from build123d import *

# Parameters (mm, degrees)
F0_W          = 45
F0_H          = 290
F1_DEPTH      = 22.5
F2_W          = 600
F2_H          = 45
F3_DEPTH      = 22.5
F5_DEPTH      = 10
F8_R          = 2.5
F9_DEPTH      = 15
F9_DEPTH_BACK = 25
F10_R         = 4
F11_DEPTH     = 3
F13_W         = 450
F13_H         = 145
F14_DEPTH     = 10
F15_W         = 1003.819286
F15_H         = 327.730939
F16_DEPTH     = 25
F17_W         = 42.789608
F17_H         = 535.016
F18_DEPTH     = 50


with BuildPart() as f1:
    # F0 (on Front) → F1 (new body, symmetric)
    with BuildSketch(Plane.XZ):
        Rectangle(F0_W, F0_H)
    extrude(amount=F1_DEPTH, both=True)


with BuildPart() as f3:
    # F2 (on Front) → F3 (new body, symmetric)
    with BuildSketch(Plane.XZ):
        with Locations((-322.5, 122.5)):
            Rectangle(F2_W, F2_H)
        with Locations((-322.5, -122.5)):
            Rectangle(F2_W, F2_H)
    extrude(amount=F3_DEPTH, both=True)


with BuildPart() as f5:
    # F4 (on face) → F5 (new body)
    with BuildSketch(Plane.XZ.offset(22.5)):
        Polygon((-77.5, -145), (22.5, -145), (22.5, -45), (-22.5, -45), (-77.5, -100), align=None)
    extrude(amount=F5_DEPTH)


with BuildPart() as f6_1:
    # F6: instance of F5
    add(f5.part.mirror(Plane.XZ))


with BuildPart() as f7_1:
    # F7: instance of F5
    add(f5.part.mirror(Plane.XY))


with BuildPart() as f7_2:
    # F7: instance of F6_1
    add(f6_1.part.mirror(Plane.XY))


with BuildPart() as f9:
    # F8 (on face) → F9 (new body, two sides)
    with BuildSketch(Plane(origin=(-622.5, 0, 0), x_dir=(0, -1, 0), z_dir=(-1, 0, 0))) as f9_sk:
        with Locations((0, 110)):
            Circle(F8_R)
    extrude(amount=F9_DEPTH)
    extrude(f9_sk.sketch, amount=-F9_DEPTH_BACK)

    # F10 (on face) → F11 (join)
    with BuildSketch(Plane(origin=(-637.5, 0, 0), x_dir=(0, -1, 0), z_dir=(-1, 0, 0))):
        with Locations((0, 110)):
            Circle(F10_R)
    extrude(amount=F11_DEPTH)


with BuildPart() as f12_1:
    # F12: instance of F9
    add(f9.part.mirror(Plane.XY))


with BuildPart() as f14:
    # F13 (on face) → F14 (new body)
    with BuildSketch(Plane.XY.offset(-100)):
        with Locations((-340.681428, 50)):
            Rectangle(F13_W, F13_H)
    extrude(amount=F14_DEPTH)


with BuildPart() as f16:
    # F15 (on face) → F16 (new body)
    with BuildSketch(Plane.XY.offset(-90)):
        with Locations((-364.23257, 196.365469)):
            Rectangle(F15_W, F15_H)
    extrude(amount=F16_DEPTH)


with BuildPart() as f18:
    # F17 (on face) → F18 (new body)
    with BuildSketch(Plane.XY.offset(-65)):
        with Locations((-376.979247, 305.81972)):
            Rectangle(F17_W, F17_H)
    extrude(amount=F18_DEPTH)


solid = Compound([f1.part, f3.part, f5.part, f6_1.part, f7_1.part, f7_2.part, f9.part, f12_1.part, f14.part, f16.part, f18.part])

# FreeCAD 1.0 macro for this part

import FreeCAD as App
import Part
import Sketcher

V = App.Vector

doc = App.newDocument("Part")
params = doc.addObject("Spreadsheet::Sheet", "Params")
for row, (alias, value) in enumerate([
    ("sketch1_width", "45 mm"),
    ("sketch1_height", "290 mm"),
    ("pad1_length", "45 mm"),
    ("sketch2_width", "600 mm"),
    ("sketch2_height", "45 mm"),
    ("pad2_length", "45 mm"),
    ("sketch3_width", "100 mm"),
    ("sketch3_width2", "45 mm"),
    ("pad3_length", "10 mm"),
    ("sketch4_diameter", "5 mm"),
    ("pad4_length", "15 mm"),
    ("pad4_length2", "25 mm"),
    ("sketch5_diameter", "8 mm"),
    ("pad5_length", "3 mm"),
    ("sketch6_width", "450 mm"),
    ("sketch6_height", "145 mm"),
    ("pad6_length", "10 mm"),
    ("pad7_length", "25 mm"),
    ("pad8_length", "50 mm"),
], start=1):
    params.set(f"A{row}", alias)
    params.set(f"B{row}", "=" + value)
    params.setAlias(f"B{row}", alias)

body = doc.addObject("PartDesign::Body", "Body")

# Sketch on XZ plane
sketch1 = body.newObject("Sketcher::SketchObject", "Sketch")
sketch1.AttachmentSupport = (doc.getObject("XZ_Plane"), [""])
sketch1.MapMode = "FlatFace"
sketch1.addGeometry(Part.LineSegment(V(-22, 145, 0), V(-22, -145, 0)), False)
sketch1.addGeometry(Part.LineSegment(V(-22, -145, 0), V(22, -145, 0)), False)
sketch1.addGeometry(Part.LineSegment(V(22, -145, 0), V(22, 145, 0)), False)
sketch1.addGeometry(Part.LineSegment(V(22, 145, 0), V(-22, 145, 0)), False)
sketch1.addConstraint(Sketcher.Constraint("Coincident", 0, 2, 1, 1))
sketch1.addConstraint(Sketcher.Constraint("Coincident", 1, 2, 2, 1))
sketch1.addConstraint(Sketcher.Constraint("Coincident", 2, 2, 3, 1))
sketch1.addConstraint(Sketcher.Constraint("Coincident", 3, 2, 0, 1))
sketch1.addConstraint(Sketcher.Constraint("Vertical", 0))
sketch1.addConstraint(Sketcher.Constraint("Horizontal", 1))
sketch1.addConstraint(Sketcher.Constraint("Vertical", 2))
sketch1.addConstraint(Sketcher.Constraint("Horizontal", 3))
sketch1.addConstraint(Sketcher.Constraint("Symmetric", 0, 2, 2, 2, -1, 1))
sketch1.addConstraint(Sketcher.Constraint("DistanceX", 1, 1, 1, 2, 45.0))
sketch1.addConstraint(Sketcher.Constraint("DistanceY", 0, 2, 0, 1, 290.0))
sketch1.setExpression("Constraints[9]", "Params.sketch1_width")
sketch1.setExpression("Constraints[10]", "Params.sketch1_height")
pad1 = body.newObject("PartDesign::Pad", "Pad")
pad1.Profile = sketch1
pad1.setExpression("Length", "Params.pad1_length")
pad1.Midplane = True
body2 = doc.addObject("PartDesign::Body", "Body001")
body2.AllowCompound = True

# Sketch on XZ plane
sketch2 = body2.newObject("Sketcher::SketchObject", "Sketch001")
sketch2.AttachmentSupport = (doc.getObject("XZ_Plane001"), [""])
sketch2.MapMode = "FlatFace"
sketch2.addGeometry(Part.LineSegment(V(-622, 145, 0), V(-622, 100, 0)), False)
sketch2.addGeometry(Part.LineSegment(V(-622, 100, 0), V(-22, 100, 0)), False)
sketch2.addGeometry(Part.LineSegment(V(-22, 100, 0), V(-22, 145, 0)), False)
sketch2.addGeometry(Part.LineSegment(V(-22, 145, 0), V(-622, 145, 0)), False)
sketch2.addGeometry(Part.LineSegment(V(-622, -100, 0), V(-622, -145, 0)), False)
sketch2.addGeometry(Part.LineSegment(V(-622, -145, 0), V(-22, -145, 0)), False)
sketch2.addGeometry(Part.LineSegment(V(-22, -145, 0), V(-22, -100, 0)), False)
sketch2.addGeometry(Part.LineSegment(V(-22, -100, 0), V(-622, -100, 0)), False)
sketch2.addConstraint(Sketcher.Constraint("Coincident", 0, 2, 1, 1))
sketch2.addConstraint(Sketcher.Constraint("Coincident", 1, 2, 2, 1))
sketch2.addConstraint(Sketcher.Constraint("Coincident", 2, 2, 3, 1))
sketch2.addConstraint(Sketcher.Constraint("Coincident", 3, 2, 0, 1))
sketch2.addConstraint(Sketcher.Constraint("Coincident", 4, 2, 5, 1))
sketch2.addConstraint(Sketcher.Constraint("Coincident", 5, 2, 6, 1))
sketch2.addConstraint(Sketcher.Constraint("Coincident", 6, 2, 7, 1))
sketch2.addConstraint(Sketcher.Constraint("Coincident", 7, 2, 4, 1))
sketch2.addConstraint(Sketcher.Constraint("Vertical", 0))
sketch2.addConstraint(Sketcher.Constraint("Horizontal", 1))
sketch2.addConstraint(Sketcher.Constraint("Vertical", 2))
sketch2.addConstraint(Sketcher.Constraint("Horizontal", 3))
sketch2.addConstraint(Sketcher.Constraint("Vertical", 4))
sketch2.addConstraint(Sketcher.Constraint("Horizontal", 5))
sketch2.addConstraint(Sketcher.Constraint("Vertical", 6))
sketch2.addConstraint(Sketcher.Constraint("Horizontal", 7))
sketch2.addConstraint(Sketcher.Constraint("Symmetric", 3, 2, 4, 2, -1))
sketch2.addConstraint(Sketcher.Constraint("Symmetric", 1, 2, 6, 2, -1))
sketch2.addConstraint(Sketcher.Constraint("DistanceX", 1, 1, 1, 2, 600.0))
sketch2.addConstraint(Sketcher.Constraint("DistanceY", 0, 2, 0, 1, 45.0))
sketch2.addConstraint(Sketcher.Constraint("DistanceY", -1, 1, 0, 2, 100.0))
sketch2.addConstraint(Sketcher.Constraint("DistanceX", 0, 2, -1, 1, 622.5))
sketch2.setExpression("Constraints[18]", "Params.sketch2_width")
sketch2.setExpression("Constraints[19]", "Params.sketch2_height")
pad2 = body2.newObject("PartDesign::Pad", "Pad001")
pad2.Profile = sketch2
pad2.setExpression("Length", "Params.pad2_length")
pad2.Midplane = True
body3 = doc.addObject("PartDesign::Body", "Body002")

# Sketch on XZ plane
sketch3 = body3.newObject("Sketcher::SketchObject", "Sketch002")
sketch3.AttachmentSupport = (doc.getObject("XZ_Plane002"), [""])
sketch3.MapMode = "FlatFace"
sketch3.AttachmentOffset = App.Placement(V(0, 0, 22.5), App.Rotation())
sketch3.addGeometry(Part.LineSegment(V(-78, -145, 0), V(22, -145, 0)), False)
sketch3.addGeometry(Part.LineSegment(V(22, -145, 0), V(22, -45, 0)), False)
sketch3.addGeometry(Part.LineSegment(V(22, -45, 0), V(-22, -45, 0)), False)
sketch3.addGeometry(Part.LineSegment(V(-22, -45, 0), V(-78, -100, 0)), False)
sketch3.addGeometry(Part.LineSegment(V(-78, -100, 0), V(-78, -145, 0)), False)
sketch3.addConstraint(Sketcher.Constraint("Coincident", 0, 2, 1, 1))
sketch3.addConstraint(Sketcher.Constraint("Coincident", 1, 2, 2, 1))
sketch3.addConstraint(Sketcher.Constraint("Coincident", 2, 2, 3, 1))
sketch3.addConstraint(Sketcher.Constraint("Coincident", 3, 2, 4, 1))
sketch3.addConstraint(Sketcher.Constraint("Coincident", 4, 2, 0, 1))
sketch3.addConstraint(Sketcher.Constraint("Horizontal", 0))
sketch3.addConstraint(Sketcher.Constraint("Vertical", 1))
sketch3.addConstraint(Sketcher.Constraint("Horizontal", 2))
sketch3.addConstraint(Sketcher.Constraint("Vertical", 4))
sketch3.addConstraint(Sketcher.Constraint("Equal", 0, 1))
sketch3.addConstraint(Sketcher.Constraint("Equal", 2, 4))
sketch3.addConstraint(Sketcher.Constraint("DistanceX", 0, 1, 0, 2, 100.0))
sketch3.addConstraint(Sketcher.Constraint("DistanceX", 2, 2, 2, 1, 45.0))
sketch3.addConstraint(Sketcher.Constraint("DistanceY", 0, 2, -1, 1, 145.0))
sketch3.addConstraint(Sketcher.Constraint("DistanceX", -1, 1, 0, 2, 22.5))
sketch3.setExpression("Constraints[11]", "Params.sketch3_width")
sketch3.setExpression("Constraints[12]", "Params.sketch3_width2")
pad3 = body3.newObject("PartDesign::Pad", "Pad002")
pad3.Profile = sketch3
pad3.setExpression("Length", "Params.pad3_length")
body4 = doc.addObject("PartDesign::Body", "Body003")
doc.recompute()

mirroring = doc.addObject("Part::Mirroring", "Mirroring")
mirroring.Source = body3
mirroring.Base = V(0, 0, 0)
mirroring.Normal = V(0, -1, 0)
body4.BaseFeature = mirroring
doc.recompute()
body5 = doc.addObject("PartDesign::Body", "Body004")
doc.recompute()

mirroring2 = doc.addObject("Part::Mirroring", "Mirroring001")
mirroring2.Source = body3
mirroring2.Base = V(0, 0, 0)
mirroring2.Normal = V(0, 0, 1)
body5.BaseFeature = mirroring2
doc.recompute()
body6 = doc.addObject("PartDesign::Body", "Body005")
doc.recompute()

mirroring3 = doc.addObject("Part::Mirroring", "Mirroring002")
mirroring3.Source = body4
mirroring3.Base = V(0, 0, 0)
mirroring3.Normal = V(0, 0, 1)
body6.BaseFeature = mirroring3
doc.recompute()
body7 = doc.addObject("PartDesign::Body", "Body006")

# Sketch on YZ plane
sketch4 = body7.newObject("Sketcher::SketchObject", "Sketch003")
sketch4.AttachmentSupport = (doc.getObject("YZ_Plane006"), [""])
sketch4.MapMode = "FlatFace"
sketch4.AttachmentOffset = App.Placement(V(0, 0, -622.5), App.Rotation())
sketch4.addGeometry(Part.Circle(V(0, 110, 0), V(0, 0, 1), 2.5), False)
sketch4.addConstraint(Sketcher.Constraint("PointOnObject", 0, 3, -2))
sketch4.addConstraint(Sketcher.Constraint("Diameter", 0, 5.0))
sketch4.addConstraint(Sketcher.Constraint("DistanceY", -1, 1, 0, 3, 110.0))
sketch4.setExpression("Constraints[1]", "Params.sketch4_diameter")
pad4 = body7.newObject("PartDesign::Pad", "Pad003")
pad4.Profile = sketch4
pad4.Type = "TwoLengths"
pad4.setExpression("Length", "Params.pad4_length")
pad4.setExpression("Length2", "Params.pad4_length2")
pad4.Reversed = True

# Sketch on YZ plane
sketch5 = body7.newObject("Sketcher::SketchObject", "Sketch004")
sketch5.AttachmentSupport = (doc.getObject("YZ_Plane006"), [""])
sketch5.MapMode = "FlatFace"
sketch5.AttachmentOffset = App.Placement(V(0, 0, -637.5), App.Rotation())
sketch5.addGeometry(Part.Circle(V(0, 110, 0), V(0, 0, 1), 4), False)
sketch5.addConstraint(Sketcher.Constraint("PointOnObject", 0, 3, -2))
sketch5.addConstraint(Sketcher.Constraint("Diameter", 0, 8.0))
sketch5.addConstraint(Sketcher.Constraint("DistanceY", -1, 1, 0, 3, 110.0))
sketch5.setExpression("Constraints[1]", "Params.sketch5_diameter")
pad5 = body7.newObject("PartDesign::Pad", "Pad004")
pad5.Profile = sketch5
pad5.setExpression("Length", "Params.pad5_length")
pad5.Reversed = True
body8 = doc.addObject("PartDesign::Body", "Body007")
doc.recompute()

mirroring4 = doc.addObject("Part::Mirroring", "Mirroring003")
mirroring4.Source = body7
mirroring4.Base = V(0, 0, 0)
mirroring4.Normal = V(0, 0, 1)
body8.BaseFeature = mirroring4
doc.recompute()
body9 = doc.addObject("PartDesign::Body", "Body008")

# Sketch on XY plane
sketch6 = body9.newObject("Sketcher::SketchObject", "Sketch005")
sketch6.AttachmentSupport = (doc.getObject("XY_Plane008"), [""])
sketch6.MapMode = "FlatFace"
sketch6.AttachmentOffset = App.Placement(V(0, 0, -100), App.Rotation())
sketch6.addGeometry(Part.LineSegment(V(-566, 122, 0), V(-566, -22, 0)), False)
sketch6.addGeometry(Part.LineSegment(V(-566, -22, 0), V(-116, -22, 0)), False)
sketch6.addGeometry(Part.LineSegment(V(-116, -22, 0), V(-116, 122, 0)), False)
sketch6.addGeometry(Part.LineSegment(V(-116, 122, 0), V(-566, 122, 0)), False)
sketch6.addConstraint(Sketcher.Constraint("Coincident", 0, 2, 1, 1))
sketch6.addConstraint(Sketcher.Constraint("Coincident", 1, 2, 2, 1))
sketch6.addConstraint(Sketcher.Constraint("Coincident", 2, 2, 3, 1))
sketch6.addConstraint(Sketcher.Constraint("Coincident", 3, 2, 0, 1))
sketch6.addConstraint(Sketcher.Constraint("Vertical", 0))
sketch6.addConstraint(Sketcher.Constraint("Horizontal", 1))
sketch6.addConstraint(Sketcher.Constraint("Vertical", 2))
sketch6.addConstraint(Sketcher.Constraint("Horizontal", 3))
sketch6.addConstraint(Sketcher.Constraint("DistanceX", 1, 1, 1, 2, 450.0))
sketch6.addConstraint(Sketcher.Constraint("DistanceY", 0, 2, 0, 1, 145.0))
sketch6.addConstraint(Sketcher.Constraint("DistanceY", 0, 2, -1, 1, 22.5))
sketch6.addConstraint(Sketcher.Constraint("DistanceX", 0, 2, -1, 1, 565.681428))
sketch6.setExpression("Constraints[8]", "Params.sketch6_width")
sketch6.setExpression("Constraints[9]", "Params.sketch6_height")
pad6 = body9.newObject("PartDesign::Pad", "Pad005")
pad6.Profile = sketch6
pad6.setExpression("Length", "Params.pad6_length")
body10 = doc.addObject("PartDesign::Body", "Body009")

# Sketch on XY plane
sketch7 = body10.newObject("Sketcher::SketchObject", "Sketch006")
sketch7.AttachmentSupport = (doc.getObject("XY_Plane009"), [""])
sketch7.MapMode = "FlatFace"
sketch7.AttachmentOffset = App.Placement(V(0, 0, -90), App.Rotation())
sketch7.addGeometry(Part.LineSegment(V(-866, 360, 0), V(-866, 32, 0)), False)
sketch7.addGeometry(Part.LineSegment(V(-866, 32, 0), V(138, 32, 0)), False)
sketch7.addGeometry(Part.LineSegment(V(138, 32, 0), V(138, 360, 0)), False)
sketch7.addGeometry(Part.LineSegment(V(138, 360, 0), V(-866, 360, 0)), False)
sketch7.addConstraint(Sketcher.Constraint("Coincident", 0, 2, 1, 1))
sketch7.addConstraint(Sketcher.Constraint("Coincident", 1, 2, 2, 1))
sketch7.addConstraint(Sketcher.Constraint("Coincident", 2, 2, 3, 1))
sketch7.addConstraint(Sketcher.Constraint("Coincident", 3, 2, 0, 1))
sketch7.addConstraint(Sketcher.Constraint("Vertical", 0))
sketch7.addConstraint(Sketcher.Constraint("Horizontal", 1))
sketch7.addConstraint(Sketcher.Constraint("Vertical", 2))
sketch7.addConstraint(Sketcher.Constraint("Horizontal", 3))
sketch7.addConstraint(Sketcher.Constraint("DistanceY", -1, 1, 0, 2, 32.5))
sketch7.addConstraint(Sketcher.Constraint("DistanceY", 0, 2, 0, 1, 327.730939))
sketch7.addConstraint(Sketcher.Constraint("DistanceX", 1, 1, 1, 2, 1003.819286))
sketch7.addConstraint(Sketcher.Constraint("DistanceX", 0, 2, -1, 1, 866.142213))
pad7 = body10.newObject("PartDesign::Pad", "Pad006")
pad7.Profile = sketch7
pad7.setExpression("Length", "Params.pad7_length")
body11 = doc.addObject("PartDesign::Body", "Body010")

# Sketch on XY plane
sketch8 = body11.newObject("Sketcher::SketchObject", "Sketch007")
sketch8.AttachmentSupport = (doc.getObject("XY_Plane010"), [""])
sketch8.MapMode = "FlatFace"
sketch8.AttachmentOffset = App.Placement(V(0, 0, -65), App.Rotation())
sketch8.addGeometry(Part.LineSegment(V(-398, 573, 0), V(-398, 38, 0)), False)
sketch8.addGeometry(Part.LineSegment(V(-398, 38, 0), V(-356, 38, 0)), False)
sketch8.addGeometry(Part.LineSegment(V(-356, 38, 0), V(-356, 573, 0)), False)
sketch8.addGeometry(Part.LineSegment(V(-356, 573, 0), V(-398, 573, 0)), False)
sketch8.addConstraint(Sketcher.Constraint("Coincident", 0, 2, 1, 1))
sketch8.addConstraint(Sketcher.Constraint("Coincident", 1, 2, 2, 1))
sketch8.addConstraint(Sketcher.Constraint("Coincident", 2, 2, 3, 1))
sketch8.addConstraint(Sketcher.Constraint("Coincident", 3, 2, 0, 1))
sketch8.addConstraint(Sketcher.Constraint("Vertical", 0))
sketch8.addConstraint(Sketcher.Constraint("Horizontal", 1))
sketch8.addConstraint(Sketcher.Constraint("Vertical", 2))
sketch8.addConstraint(Sketcher.Constraint("Horizontal", 3))
sketch8.addConstraint(Sketcher.Constraint("DistanceY", 0, 2, 0, 1, 535.016))
sketch8.addConstraint(Sketcher.Constraint("DistanceX", 1, 1, 1, 2, 42.789608))
sketch8.addConstraint(Sketcher.Constraint("DistanceX", 0, 2, -1, 1, 398.374051))
sketch8.addConstraint(Sketcher.Constraint("DistanceY", -1, 1, 0, 2, 38.31172))
pad8 = body11.newObject("PartDesign::Pad", "Pad007")
pad8.Profile = sketch8
pad8.setExpression("Length", "Params.pad8_length")
mirroring.Visibility = False
mirroring2.Visibility = False
mirroring3.Visibility = False
mirroring4.Visibility = False

doc.recompute()
